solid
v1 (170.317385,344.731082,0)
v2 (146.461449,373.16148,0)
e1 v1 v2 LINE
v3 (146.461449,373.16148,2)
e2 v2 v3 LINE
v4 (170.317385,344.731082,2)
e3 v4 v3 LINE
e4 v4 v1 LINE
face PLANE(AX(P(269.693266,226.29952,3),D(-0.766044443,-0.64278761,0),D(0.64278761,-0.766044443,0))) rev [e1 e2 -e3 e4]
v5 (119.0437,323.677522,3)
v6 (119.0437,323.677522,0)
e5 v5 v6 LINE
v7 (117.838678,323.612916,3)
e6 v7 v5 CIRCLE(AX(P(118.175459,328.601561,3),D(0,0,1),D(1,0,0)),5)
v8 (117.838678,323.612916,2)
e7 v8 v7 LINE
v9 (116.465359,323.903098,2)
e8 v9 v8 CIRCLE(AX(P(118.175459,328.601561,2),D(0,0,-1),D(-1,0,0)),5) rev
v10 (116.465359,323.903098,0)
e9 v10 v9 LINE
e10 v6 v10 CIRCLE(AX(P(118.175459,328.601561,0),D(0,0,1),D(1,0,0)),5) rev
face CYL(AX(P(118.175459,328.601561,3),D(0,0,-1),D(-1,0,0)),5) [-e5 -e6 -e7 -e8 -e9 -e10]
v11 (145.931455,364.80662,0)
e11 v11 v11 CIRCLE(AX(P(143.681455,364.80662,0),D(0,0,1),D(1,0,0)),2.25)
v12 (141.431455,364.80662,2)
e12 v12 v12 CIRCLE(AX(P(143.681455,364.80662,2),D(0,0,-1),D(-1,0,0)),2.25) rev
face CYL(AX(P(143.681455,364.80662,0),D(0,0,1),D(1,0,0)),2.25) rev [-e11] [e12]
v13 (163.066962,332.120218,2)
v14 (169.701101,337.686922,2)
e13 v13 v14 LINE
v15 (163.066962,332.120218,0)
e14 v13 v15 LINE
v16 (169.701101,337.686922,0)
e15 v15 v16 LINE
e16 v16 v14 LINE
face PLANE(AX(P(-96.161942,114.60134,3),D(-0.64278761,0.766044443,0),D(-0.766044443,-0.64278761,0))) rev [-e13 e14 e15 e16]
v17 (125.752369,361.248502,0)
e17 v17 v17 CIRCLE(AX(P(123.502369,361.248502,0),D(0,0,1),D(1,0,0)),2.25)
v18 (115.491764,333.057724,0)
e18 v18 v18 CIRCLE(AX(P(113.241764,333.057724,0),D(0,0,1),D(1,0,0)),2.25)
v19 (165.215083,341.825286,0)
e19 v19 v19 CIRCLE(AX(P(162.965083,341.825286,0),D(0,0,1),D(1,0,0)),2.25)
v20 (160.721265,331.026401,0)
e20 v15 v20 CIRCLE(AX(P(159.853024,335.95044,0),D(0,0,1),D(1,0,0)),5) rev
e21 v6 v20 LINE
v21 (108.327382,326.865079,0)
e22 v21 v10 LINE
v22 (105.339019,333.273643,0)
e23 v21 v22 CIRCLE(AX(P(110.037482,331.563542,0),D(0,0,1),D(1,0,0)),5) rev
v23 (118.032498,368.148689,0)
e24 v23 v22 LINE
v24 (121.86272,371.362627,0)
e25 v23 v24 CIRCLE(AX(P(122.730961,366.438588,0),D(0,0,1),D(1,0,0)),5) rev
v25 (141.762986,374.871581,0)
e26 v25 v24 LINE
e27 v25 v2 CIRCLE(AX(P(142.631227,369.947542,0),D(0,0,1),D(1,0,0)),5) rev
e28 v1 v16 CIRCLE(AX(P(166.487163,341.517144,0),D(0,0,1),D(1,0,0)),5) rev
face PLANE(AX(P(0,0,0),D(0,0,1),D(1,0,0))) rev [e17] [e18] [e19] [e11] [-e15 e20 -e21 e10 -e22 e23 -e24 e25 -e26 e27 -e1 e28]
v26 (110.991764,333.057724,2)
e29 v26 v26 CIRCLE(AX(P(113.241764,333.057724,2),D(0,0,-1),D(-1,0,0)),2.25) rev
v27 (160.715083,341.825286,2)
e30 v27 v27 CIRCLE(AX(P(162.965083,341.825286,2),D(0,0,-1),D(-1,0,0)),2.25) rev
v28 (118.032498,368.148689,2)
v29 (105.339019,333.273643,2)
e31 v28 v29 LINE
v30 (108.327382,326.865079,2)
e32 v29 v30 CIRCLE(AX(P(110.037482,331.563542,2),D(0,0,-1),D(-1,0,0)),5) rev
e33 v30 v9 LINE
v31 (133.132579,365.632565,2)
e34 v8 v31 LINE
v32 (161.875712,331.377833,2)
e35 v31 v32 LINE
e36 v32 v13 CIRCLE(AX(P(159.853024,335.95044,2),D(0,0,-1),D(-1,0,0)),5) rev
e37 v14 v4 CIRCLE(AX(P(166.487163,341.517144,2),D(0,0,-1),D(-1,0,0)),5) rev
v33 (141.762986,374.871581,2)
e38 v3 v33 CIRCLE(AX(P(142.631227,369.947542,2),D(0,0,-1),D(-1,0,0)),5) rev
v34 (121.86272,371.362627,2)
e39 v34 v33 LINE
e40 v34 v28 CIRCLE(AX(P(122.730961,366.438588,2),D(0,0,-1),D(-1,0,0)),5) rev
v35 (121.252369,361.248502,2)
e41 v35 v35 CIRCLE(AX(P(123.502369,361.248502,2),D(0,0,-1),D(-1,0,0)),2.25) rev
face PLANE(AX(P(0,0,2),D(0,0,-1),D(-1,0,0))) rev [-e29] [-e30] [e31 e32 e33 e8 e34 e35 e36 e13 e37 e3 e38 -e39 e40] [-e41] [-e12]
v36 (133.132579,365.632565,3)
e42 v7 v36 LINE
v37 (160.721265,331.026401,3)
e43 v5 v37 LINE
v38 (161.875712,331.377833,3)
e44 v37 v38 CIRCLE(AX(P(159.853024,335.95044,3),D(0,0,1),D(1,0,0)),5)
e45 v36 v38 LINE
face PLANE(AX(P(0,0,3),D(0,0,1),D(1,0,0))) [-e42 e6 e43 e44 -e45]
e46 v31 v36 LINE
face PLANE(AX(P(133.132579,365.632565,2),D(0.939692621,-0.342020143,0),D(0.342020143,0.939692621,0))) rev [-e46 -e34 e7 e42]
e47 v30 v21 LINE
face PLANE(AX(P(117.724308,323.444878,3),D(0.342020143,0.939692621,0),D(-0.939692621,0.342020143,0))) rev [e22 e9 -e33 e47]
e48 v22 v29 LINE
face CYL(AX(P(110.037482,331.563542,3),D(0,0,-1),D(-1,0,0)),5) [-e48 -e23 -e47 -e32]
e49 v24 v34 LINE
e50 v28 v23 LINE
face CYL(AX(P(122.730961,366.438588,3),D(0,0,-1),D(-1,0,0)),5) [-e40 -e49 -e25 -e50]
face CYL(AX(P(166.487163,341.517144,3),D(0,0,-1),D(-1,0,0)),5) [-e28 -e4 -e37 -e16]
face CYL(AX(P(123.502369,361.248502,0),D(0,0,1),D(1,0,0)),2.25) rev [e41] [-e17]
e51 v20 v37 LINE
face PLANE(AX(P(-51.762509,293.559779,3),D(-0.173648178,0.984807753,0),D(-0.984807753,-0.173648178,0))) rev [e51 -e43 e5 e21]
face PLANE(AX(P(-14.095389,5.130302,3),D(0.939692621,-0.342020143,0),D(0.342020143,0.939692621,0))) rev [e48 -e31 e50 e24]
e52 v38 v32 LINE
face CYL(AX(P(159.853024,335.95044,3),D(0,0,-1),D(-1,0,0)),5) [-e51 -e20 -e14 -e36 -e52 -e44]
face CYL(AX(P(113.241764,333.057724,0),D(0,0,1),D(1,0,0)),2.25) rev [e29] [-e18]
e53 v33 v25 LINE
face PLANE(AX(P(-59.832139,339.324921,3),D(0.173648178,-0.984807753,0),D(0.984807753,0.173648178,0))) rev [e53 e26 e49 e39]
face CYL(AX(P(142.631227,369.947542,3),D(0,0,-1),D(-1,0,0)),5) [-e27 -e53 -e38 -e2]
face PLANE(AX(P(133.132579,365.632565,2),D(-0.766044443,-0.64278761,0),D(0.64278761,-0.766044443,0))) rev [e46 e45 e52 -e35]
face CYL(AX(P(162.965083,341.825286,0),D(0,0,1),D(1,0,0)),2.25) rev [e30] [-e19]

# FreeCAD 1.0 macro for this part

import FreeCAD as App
import Part
import Sketcher
Q = App.Units.Quantity


def edges_at(feature, points):
    """Names of the edges that pass closest to the given points."""
    edges = feature.Shape.Edges
    near = lambda p: min(range(len(edges)), key=lambda i: edges[i].distToShape(Part.Vertex(*p))[0])
    return sorted({f"Edge{near(p) + 1}" for p in points})

doc = App.newDocument("Part")
body = doc.addObject("PartDesign::Body", "Body")

# Sketch on XY plane
sketch1 = body.newObject("Sketcher::SketchObject", "Sketch")
sketch1.AttachmentSupport = (doc.getObject("XY_Plane"), [""])
sketch1.MapMode = "FlatFace"
sketch1.addGeometry([
    Part.LineSegment(App.Vector(173.531323, 340.90086, 0), App.Vector(144.605881, 375.37286, 0)),  # 0
    Part.LineSegment(App.Vector(144.605881, 375.37286, 0), App.Vector(119.019825, 370.861348, 0)),  # 1
    Part.LineSegment(App.Vector(119.019825, 370.861348, 0), App.Vector(103.628919, 328.57518, 0)),  # 2
    Part.LineSegment(App.Vector(103.628919, 328.57518, 0), App.Vector(117.724308, 323.444878, 0)),  # 3
    Part.LineSegment(App.Vector(117.724308, 323.444878, 0), App.Vector(162.040657, 331.259046, 0)),  # 4
    Part.LineSegment(App.Vector(162.040657, 331.259046, 0), App.Vector(173.531323, 340.90086, 0)),  # 5
], False)
sketch1.addConstraint([
    Sketcher.Constraint("Coincident", 0, 2, 1, 1),
    Sketcher.Constraint("Coincident", 1, 2, 2, 1),
    Sketcher.Constraint("Coincident", 2, 2, 3, 1),
    Sketcher.Constraint("Coincident", 3, 2, 4, 1),
    Sketcher.Constraint("Coincident", 4, 2, 5, 1),
    Sketcher.Constraint("Coincident", 5, 2, 0, 1),
    Sketcher.Constraint("Perpendicular", 2, 3),
    Sketcher.Constraint("Parallel", 1, 4),
    Sketcher.Constraint("Perpendicular", 0, 5),
    Sketcher.Constraint("Equal", 0, 2),
    Sketcher.Constraint("Equal", 2, 4),
    Sketcher.Constraint("Equal", 3, 5),
    Sketcher.Constraint("Angle", 0, Q("130 deg")),
    Sketcher.Constraint("Angle", 1, Q("-170 deg")),
    Sketcher.Constraint("Distance", 0, Q("45 mm")),
    Sketcher.Constraint("Distance", 3, Q("15 mm")),
    Sketcher.Constraint("DistanceX", -1, 1, 0, 2, Q("144.605881 mm")),
    Sketcher.Constraint("DistanceY", -1, 1, 0, 2, Q("375.37286 mm")),
])
pad1 = body.newObject("PartDesign::Pad", "Pad")
pad1.Profile = sketch1
pad1.Length = 3

# Sketch on XY plane
sketch2 = body.newObject("Sketcher::SketchObject", "Sketch001")
sketch2.AttachmentSupport = (doc.getObject("XY_Plane"), [""])
sketch2.MapMode = "FlatFace"
sketch2.AttachmentOffset = App.Placement(App.Vector(0, 0, 3), App.Rotation())
sketch2.addGeometry([
    Part.Circle(App.Vector(113.241764, 333.057724, 0), App.Vector(0, 0, 1), 2.25),
    Part.Circle(App.Vector(123.502369, 361.248502, 0), App.Vector(0, 0, 1), 2.25),
    Part.Circle(App.Vector(143.681455, 364.80662, 0), App.Vector(0, 0, 1), 2.25),
    Part.Circle(App.Vector(162.965083, 341.825286, 0), App.Vector(0, 0, 1), 2.25),
], False)
sketch2.addConstraint([
    Sketcher.Constraint("Equal", 0, 1),
    Sketcher.Constraint("Equal", 1, 2),
    Sketcher.Constraint("Equal", 2, 3),
    Sketcher.Constraint("Diameter", 0, Q("4.5 mm")),
    Sketcher.Constraint("DistanceX", -1, 1, 1, 3, Q("123.502369 mm")),
    Sketcher.Constraint("DistanceY", -1, 1, 2, 3, Q("364.80662 mm")),
    Sketcher.Constraint("DistanceY", 0, 3, 1, 3, Q("28.190779 mm")),
    Sketcher.Constraint("DistanceX", 0, 3, 2, 3, Q("30.43969 mm")),
    Sketcher.Constraint("DistanceX", 2, 3, 3, 3, Q("19.283628 mm")),
    Sketcher.Constraint("DistanceX", -1, 1, 0, 3, Q("113.241764 mm")),
    Sketcher.Constraint("DistanceY", -1, 1, 0, 3, Q("333.057724 mm")),
    Sketcher.Constraint("DistanceY", -1, 1, 3, 3, Q("341.825286 mm")),
])
pocket1 = body.newObject("PartDesign::Pocket", "Pocket")
pocket1.Profile = sketch2
pocket1.Length = 3
doc.recompute()

fillet = body.newObject("PartDesign::Fillet", "Fillet")
fillet.Base = (pocket1, edges_at(pocket1, [
    (173.531, 340.901, 1.5),
    (162.041, 331.259, 1.5),
    (117.724, 323.445, 1.5),
    (103.629, 328.575, 1.5),
    (119.02, 370.861, 1.5),
    (144.606, 375.373, 1.5),
]))
fillet.Radius = 5

# Sketch on XY plane
sketch3 = body.newObject("Sketcher::SketchObject", "Sketch002")
sketch3.AttachmentSupport = (doc.getObject("XY_Plane"), [""])
sketch3.MapMode = "FlatFace"
sketch3.AttachmentOffset = App.Placement(App.Vector(0, 0, 3), App.Rotation())
sketch3.addGeometry([
    Part.LineSegment(App.Vector(121.413966, 377.439196, 0), App.Vector(103.628919, 328.57518, 0)),  # 0
    Part.LineSegment(App.Vector(103.628919, 328.57518, 0), App.Vector(117.771293, 323.427777, 0)),  # 1
    Part.LineSegment(App.Vector(117.771293, 323.427777, 0), App.Vector(133.132579, 365.632565, 0)),  # 2
    Part.LineSegment(App.Vector(133.132579, 365.632565, 0), App.Vector(162.002355, 331.226906, 0)),  # 3
    Part.LineSegment(App.Vector(162.002355, 331.226906, 0), App.Vector(173.531323, 340.90086, 0)),  # 4
    Part.LineSegment(App.Vector(173.531323, 340.90086, 0), App.Vector(140.106368, 380.735171, 0)),  # 5
    Part.LineSegment(App.Vector(140.106368, 380.735171, 0), App.Vector(131.711633, 373.691152, 0)),  # 6
    Part.LineSegment(App.Vector(131.711633, 373.691152, 0), App.Vector(121.413966, 377.439196, 0)),  # 7
], False)
sketch3.addConstraint([
    Sketcher.Constraint("Coincident", 0, 2, 1, 1),
    Sketcher.Constraint("Coincident", 1, 2, 2, 1),
    Sketcher.Constraint("Coincident", 2, 2, 3, 1),
    Sketcher.Constraint("Coincident", 3, 2, 4, 1),
    Sketcher.Constraint("Coincident", 4, 2, 5, 1),
    Sketcher.Constraint("Coincident", 5, 2, 6, 1),
    Sketcher.Constraint("Coincident", 6, 2, 7, 1),
    Sketcher.Constraint("Coincident", 7, 2, 0, 1),
    Sketcher.Constraint("Perpendicular", 0, 1),
    Sketcher.Constraint("Perpendicular", 1, 2),
    Sketcher.Constraint("Perpendicular", 3, 4),
    Sketcher.Constraint("Perpendicular", 4, 5),
    Sketcher.Constraint("Perpendicular", 5, 6),
    Sketcher.Constraint("Perpendicular", 2, 7),
    Sketcher.Constraint("Equal", 2, 3),
    Sketcher.Constraint("Equal", 1, 4),
    Sketcher.Constraint("Equal", 0, 5),
    Sketcher.Constraint("Angle", 0, Q("-110 deg")),
    Sketcher.Constraint("Angle", 3, Q("-50 deg")),
    Sketcher.Constraint("Distance", 0, Q("52 mm")),
    Sketcher.Constraint("Distance", 1, Q("15.05 mm")),
    Sketcher.Constraint("DistanceX", 7, 2, 5, 2, Q("18.692402 mm")),
    Sketcher.Constraint("DistanceX", -1, 1, 0, 2, Q("103.628919 mm")),
    Sketcher.Constraint("DistanceY", -1, 1, 0, 2, Q("328.57518 mm")),
])
pocket2 = body.newObject("PartDesign::Pocket", "Pocket001")
pocket2.Profile = sketch3
pocket2.Length = 1

doc.recompute()
